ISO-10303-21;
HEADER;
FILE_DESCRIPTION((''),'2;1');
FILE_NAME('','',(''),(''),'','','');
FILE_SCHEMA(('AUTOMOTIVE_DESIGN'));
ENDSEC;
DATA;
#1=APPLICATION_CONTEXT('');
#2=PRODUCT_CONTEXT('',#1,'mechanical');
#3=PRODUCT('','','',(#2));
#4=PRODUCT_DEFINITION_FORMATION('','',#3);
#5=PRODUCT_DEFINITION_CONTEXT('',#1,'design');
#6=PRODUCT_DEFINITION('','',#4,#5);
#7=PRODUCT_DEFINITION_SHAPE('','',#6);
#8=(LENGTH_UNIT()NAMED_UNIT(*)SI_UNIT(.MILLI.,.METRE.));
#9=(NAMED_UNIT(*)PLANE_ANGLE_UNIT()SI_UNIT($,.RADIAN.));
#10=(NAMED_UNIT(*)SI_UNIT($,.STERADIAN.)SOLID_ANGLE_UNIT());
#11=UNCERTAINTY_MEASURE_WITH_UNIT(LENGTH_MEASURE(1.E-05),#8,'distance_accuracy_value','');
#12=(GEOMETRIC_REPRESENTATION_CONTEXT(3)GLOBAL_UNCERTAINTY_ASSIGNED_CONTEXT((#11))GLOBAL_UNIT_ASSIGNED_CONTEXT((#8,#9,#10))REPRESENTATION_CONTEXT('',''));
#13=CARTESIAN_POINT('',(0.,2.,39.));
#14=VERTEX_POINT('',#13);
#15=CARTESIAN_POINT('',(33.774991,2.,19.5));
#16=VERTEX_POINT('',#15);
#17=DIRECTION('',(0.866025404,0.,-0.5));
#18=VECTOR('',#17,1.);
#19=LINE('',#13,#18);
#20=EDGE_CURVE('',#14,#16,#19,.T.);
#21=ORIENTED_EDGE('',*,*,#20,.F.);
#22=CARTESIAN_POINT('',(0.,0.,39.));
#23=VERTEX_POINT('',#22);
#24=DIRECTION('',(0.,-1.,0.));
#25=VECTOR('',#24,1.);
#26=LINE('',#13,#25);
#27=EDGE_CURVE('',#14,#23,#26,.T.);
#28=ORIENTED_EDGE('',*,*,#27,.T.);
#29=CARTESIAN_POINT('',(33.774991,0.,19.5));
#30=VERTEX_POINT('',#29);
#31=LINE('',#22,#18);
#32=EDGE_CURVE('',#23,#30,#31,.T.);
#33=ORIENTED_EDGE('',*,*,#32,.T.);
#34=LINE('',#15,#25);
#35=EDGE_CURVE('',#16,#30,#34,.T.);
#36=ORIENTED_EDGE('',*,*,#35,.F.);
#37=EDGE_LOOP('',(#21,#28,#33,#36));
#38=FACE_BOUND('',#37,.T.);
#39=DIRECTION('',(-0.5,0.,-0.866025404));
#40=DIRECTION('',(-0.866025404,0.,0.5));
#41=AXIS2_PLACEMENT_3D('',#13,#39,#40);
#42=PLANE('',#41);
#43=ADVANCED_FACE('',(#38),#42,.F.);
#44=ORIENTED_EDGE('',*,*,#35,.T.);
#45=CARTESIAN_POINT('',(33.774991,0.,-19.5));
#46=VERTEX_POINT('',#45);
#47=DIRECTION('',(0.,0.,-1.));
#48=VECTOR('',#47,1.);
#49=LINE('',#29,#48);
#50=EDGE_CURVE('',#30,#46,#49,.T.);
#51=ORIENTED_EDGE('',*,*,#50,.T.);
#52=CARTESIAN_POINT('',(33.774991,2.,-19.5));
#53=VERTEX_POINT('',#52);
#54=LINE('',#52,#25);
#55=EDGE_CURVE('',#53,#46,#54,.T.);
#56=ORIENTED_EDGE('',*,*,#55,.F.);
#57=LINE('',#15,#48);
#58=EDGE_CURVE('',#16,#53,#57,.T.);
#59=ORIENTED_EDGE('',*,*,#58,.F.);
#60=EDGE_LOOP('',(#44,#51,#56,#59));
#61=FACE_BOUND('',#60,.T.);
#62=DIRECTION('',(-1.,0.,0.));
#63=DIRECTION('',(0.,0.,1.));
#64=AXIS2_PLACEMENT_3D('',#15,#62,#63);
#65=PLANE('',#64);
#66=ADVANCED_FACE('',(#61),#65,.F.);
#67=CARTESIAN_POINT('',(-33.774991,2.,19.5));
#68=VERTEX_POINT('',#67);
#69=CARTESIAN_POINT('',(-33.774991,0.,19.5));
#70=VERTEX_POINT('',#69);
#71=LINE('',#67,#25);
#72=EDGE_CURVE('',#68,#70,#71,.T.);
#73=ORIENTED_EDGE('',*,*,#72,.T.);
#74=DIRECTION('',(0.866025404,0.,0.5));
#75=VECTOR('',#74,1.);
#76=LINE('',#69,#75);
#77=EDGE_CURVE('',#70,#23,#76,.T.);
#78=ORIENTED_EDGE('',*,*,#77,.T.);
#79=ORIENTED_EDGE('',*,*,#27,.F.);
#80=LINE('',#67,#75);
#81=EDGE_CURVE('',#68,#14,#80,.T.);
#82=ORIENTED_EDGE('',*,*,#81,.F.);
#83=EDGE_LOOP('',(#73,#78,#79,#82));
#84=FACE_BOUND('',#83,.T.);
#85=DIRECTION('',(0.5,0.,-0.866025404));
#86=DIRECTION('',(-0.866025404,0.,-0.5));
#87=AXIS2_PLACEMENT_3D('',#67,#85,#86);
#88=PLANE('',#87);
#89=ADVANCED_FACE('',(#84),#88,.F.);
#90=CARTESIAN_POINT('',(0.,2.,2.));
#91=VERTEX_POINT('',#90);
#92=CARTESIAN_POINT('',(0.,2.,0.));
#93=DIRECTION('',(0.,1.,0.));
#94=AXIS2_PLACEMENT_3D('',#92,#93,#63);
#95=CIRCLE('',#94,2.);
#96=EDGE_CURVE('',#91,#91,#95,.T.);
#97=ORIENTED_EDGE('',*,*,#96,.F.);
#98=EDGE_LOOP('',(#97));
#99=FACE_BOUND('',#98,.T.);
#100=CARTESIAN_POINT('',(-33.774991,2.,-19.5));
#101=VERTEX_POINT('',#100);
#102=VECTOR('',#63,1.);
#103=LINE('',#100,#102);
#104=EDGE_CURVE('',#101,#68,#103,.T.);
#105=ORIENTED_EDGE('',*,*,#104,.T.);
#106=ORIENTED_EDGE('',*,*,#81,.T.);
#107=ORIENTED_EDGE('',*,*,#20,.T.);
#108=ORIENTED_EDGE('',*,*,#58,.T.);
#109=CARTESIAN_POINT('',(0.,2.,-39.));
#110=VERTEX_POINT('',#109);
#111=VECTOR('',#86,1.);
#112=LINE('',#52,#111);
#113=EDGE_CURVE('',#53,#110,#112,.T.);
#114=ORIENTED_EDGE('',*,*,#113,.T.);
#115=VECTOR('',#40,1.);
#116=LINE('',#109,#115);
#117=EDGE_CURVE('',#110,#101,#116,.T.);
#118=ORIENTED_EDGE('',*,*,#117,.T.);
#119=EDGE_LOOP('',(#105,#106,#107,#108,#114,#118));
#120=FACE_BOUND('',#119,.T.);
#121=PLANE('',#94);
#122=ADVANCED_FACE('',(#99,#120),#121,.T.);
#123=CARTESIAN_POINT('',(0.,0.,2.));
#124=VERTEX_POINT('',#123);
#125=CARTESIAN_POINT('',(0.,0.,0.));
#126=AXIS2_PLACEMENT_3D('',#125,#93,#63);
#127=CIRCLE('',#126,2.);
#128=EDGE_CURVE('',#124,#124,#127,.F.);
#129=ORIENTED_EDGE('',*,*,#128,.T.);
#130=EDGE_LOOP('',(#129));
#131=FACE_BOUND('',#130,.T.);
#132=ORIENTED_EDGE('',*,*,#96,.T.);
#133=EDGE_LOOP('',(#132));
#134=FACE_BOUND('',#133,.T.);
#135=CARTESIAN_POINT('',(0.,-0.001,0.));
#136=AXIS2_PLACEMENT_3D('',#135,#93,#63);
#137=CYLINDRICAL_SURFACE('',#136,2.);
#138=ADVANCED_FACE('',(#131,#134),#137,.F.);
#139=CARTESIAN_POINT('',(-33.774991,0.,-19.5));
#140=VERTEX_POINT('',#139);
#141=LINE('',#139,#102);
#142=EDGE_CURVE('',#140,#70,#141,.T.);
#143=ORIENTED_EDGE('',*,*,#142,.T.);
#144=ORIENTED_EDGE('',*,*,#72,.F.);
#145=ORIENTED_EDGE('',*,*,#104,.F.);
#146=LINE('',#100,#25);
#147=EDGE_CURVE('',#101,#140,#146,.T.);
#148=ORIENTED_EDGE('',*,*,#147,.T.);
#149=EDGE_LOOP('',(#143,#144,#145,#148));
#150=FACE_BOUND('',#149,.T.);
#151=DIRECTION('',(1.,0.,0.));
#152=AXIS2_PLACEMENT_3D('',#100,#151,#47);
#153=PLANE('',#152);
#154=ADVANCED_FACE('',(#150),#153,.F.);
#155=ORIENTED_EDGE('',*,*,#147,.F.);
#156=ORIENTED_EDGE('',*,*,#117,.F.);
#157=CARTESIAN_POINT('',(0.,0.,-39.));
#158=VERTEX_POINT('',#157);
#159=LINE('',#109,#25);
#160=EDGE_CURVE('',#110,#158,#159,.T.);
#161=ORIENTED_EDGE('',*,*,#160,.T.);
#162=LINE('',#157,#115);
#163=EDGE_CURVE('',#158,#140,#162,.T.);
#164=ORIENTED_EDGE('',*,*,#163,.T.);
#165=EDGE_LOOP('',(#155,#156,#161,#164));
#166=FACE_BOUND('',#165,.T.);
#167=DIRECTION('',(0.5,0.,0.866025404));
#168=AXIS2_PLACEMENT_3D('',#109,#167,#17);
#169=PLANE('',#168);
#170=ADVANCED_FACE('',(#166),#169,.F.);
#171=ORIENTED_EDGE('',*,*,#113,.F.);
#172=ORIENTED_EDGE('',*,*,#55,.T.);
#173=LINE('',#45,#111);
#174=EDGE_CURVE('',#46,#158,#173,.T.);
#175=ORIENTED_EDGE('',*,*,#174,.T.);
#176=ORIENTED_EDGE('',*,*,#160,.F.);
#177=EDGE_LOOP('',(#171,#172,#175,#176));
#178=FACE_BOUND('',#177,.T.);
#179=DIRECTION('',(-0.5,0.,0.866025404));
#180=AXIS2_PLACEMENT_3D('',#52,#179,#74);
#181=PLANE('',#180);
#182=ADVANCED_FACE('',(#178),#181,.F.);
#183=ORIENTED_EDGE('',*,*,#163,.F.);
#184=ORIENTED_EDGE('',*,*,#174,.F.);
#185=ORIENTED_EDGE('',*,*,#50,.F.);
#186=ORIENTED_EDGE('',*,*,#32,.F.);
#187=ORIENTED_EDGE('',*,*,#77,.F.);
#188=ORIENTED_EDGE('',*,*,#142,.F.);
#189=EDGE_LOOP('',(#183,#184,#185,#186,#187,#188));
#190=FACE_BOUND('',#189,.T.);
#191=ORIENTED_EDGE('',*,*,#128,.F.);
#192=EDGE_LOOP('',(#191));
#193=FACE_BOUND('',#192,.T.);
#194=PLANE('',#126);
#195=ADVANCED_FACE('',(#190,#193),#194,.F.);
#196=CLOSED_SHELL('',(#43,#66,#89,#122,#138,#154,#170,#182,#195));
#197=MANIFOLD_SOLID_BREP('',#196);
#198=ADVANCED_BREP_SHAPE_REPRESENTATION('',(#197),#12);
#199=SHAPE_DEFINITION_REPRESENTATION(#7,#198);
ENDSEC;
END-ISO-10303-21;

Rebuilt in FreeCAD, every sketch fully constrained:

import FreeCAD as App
import Part
import Sketcher
Q = App.Units.Quantity

doc = App.newDocument("Part")
body = doc.addObject("PartDesign::Body", "Body")

# Sketch on XZ plane
sketch1 = body.newObject("Sketcher::SketchObject", "Sketch")
sketch1.AttachmentSupport = (doc.getObject("XZ_Plane"), [""])
sketch1.MapMode = "FlatFace"
sketch1.addGeometry([
    Part.LineSegment(App.Vector(34, -20, 0), App.Vector(0, -39, 0)),  # 0
    Part.LineSegment(App.Vector(0, -39, 0), App.Vector(-34, -20, 0)),  # 1
    Part.LineSegment(App.Vector(-34, -20, 0), App.Vector(-34, 20, 0)),  # 2
    Part.LineSegment(App.Vector(-34, 20, 0), App.Vector(0, 39, 0)),  # 3
    Part.LineSegment(App.Vector(0, 39, 0), App.Vector(34, 20, 0)),  # 4
    Part.LineSegment(App.Vector(34, 20, 0), App.Vector(34, -20, 0)),  # 5
], False)
sketch1.addConstraint([
    Sketcher.Constraint("Coincident", 0, 2, 1, 1),
    Sketcher.Constraint("Coincident", 1, 2, 2, 1),
    Sketcher.Constraint("Coincident", 2, 2, 3, 1),
    Sketcher.Constraint("Coincident", 3, 2, 4, 1),
    Sketcher.Constraint("Coincident", 4, 2, 5, 1),
    Sketcher.Constraint("Coincident", 5, 2, 0, 1),
    Sketcher.Constraint("Vertical", 2),
    Sketcher.Constraint("Vertical", 5),
    Sketcher.Constraint("Symmetric", 0, 2, 3, 2, -1, 1),
    Sketcher.Constraint("Symmetric", 1, 2, 4, 2, -1, 1),
    Sketcher.Constraint("PointOnObject", 0, 2, -2),
    Sketcher.Constraint("Parallel", 0, 3),
    Sketcher.Constraint("Horizontal", 2, 2, 4, 2),
    Sketcher.Constraint("DistanceY", 2, 1, 2, 2, 39.0),
    Sketcher.Constraint("Angle", 0, Q("-150 deg")),
    Sketcher.Constraint("Distance", 0, 39.0),
])
pad1 = body.newObject("PartDesign::Pad", "Pad")
pad1.Profile = sketch1
pad1.Length = 2
pad1.Reversed = True

# Sketch on XZ plane
sketch2 = body.newObject("Sketcher::SketchObject", "Sketch001")
sketch2.AttachmentSupport = (doc.getObject("XZ_Plane"), [""])
sketch2.MapMode = "FlatFace"
sketch2.AttachmentOffset = App.Placement(App.Vector(0, 0, -2), App.Rotation())
sketch2.addGeometry(Part.Circle(App.Vector(0, 0, 0), App.Vector(0, 0, 1), 2), False)
sketch2.addConstraint([
    Sketcher.Constraint("Coincident", 0, 3, -1, 1),
    Sketcher.Constraint("Diameter", 0, 4.0),
])
pocket1 = body.newObject("PartDesign::Pocket", "Pocket")
pocket1.Profile = sketch2
pocket1.Type = "UpToFirst"
pocket1.Reversed = True

doc.recompute()
